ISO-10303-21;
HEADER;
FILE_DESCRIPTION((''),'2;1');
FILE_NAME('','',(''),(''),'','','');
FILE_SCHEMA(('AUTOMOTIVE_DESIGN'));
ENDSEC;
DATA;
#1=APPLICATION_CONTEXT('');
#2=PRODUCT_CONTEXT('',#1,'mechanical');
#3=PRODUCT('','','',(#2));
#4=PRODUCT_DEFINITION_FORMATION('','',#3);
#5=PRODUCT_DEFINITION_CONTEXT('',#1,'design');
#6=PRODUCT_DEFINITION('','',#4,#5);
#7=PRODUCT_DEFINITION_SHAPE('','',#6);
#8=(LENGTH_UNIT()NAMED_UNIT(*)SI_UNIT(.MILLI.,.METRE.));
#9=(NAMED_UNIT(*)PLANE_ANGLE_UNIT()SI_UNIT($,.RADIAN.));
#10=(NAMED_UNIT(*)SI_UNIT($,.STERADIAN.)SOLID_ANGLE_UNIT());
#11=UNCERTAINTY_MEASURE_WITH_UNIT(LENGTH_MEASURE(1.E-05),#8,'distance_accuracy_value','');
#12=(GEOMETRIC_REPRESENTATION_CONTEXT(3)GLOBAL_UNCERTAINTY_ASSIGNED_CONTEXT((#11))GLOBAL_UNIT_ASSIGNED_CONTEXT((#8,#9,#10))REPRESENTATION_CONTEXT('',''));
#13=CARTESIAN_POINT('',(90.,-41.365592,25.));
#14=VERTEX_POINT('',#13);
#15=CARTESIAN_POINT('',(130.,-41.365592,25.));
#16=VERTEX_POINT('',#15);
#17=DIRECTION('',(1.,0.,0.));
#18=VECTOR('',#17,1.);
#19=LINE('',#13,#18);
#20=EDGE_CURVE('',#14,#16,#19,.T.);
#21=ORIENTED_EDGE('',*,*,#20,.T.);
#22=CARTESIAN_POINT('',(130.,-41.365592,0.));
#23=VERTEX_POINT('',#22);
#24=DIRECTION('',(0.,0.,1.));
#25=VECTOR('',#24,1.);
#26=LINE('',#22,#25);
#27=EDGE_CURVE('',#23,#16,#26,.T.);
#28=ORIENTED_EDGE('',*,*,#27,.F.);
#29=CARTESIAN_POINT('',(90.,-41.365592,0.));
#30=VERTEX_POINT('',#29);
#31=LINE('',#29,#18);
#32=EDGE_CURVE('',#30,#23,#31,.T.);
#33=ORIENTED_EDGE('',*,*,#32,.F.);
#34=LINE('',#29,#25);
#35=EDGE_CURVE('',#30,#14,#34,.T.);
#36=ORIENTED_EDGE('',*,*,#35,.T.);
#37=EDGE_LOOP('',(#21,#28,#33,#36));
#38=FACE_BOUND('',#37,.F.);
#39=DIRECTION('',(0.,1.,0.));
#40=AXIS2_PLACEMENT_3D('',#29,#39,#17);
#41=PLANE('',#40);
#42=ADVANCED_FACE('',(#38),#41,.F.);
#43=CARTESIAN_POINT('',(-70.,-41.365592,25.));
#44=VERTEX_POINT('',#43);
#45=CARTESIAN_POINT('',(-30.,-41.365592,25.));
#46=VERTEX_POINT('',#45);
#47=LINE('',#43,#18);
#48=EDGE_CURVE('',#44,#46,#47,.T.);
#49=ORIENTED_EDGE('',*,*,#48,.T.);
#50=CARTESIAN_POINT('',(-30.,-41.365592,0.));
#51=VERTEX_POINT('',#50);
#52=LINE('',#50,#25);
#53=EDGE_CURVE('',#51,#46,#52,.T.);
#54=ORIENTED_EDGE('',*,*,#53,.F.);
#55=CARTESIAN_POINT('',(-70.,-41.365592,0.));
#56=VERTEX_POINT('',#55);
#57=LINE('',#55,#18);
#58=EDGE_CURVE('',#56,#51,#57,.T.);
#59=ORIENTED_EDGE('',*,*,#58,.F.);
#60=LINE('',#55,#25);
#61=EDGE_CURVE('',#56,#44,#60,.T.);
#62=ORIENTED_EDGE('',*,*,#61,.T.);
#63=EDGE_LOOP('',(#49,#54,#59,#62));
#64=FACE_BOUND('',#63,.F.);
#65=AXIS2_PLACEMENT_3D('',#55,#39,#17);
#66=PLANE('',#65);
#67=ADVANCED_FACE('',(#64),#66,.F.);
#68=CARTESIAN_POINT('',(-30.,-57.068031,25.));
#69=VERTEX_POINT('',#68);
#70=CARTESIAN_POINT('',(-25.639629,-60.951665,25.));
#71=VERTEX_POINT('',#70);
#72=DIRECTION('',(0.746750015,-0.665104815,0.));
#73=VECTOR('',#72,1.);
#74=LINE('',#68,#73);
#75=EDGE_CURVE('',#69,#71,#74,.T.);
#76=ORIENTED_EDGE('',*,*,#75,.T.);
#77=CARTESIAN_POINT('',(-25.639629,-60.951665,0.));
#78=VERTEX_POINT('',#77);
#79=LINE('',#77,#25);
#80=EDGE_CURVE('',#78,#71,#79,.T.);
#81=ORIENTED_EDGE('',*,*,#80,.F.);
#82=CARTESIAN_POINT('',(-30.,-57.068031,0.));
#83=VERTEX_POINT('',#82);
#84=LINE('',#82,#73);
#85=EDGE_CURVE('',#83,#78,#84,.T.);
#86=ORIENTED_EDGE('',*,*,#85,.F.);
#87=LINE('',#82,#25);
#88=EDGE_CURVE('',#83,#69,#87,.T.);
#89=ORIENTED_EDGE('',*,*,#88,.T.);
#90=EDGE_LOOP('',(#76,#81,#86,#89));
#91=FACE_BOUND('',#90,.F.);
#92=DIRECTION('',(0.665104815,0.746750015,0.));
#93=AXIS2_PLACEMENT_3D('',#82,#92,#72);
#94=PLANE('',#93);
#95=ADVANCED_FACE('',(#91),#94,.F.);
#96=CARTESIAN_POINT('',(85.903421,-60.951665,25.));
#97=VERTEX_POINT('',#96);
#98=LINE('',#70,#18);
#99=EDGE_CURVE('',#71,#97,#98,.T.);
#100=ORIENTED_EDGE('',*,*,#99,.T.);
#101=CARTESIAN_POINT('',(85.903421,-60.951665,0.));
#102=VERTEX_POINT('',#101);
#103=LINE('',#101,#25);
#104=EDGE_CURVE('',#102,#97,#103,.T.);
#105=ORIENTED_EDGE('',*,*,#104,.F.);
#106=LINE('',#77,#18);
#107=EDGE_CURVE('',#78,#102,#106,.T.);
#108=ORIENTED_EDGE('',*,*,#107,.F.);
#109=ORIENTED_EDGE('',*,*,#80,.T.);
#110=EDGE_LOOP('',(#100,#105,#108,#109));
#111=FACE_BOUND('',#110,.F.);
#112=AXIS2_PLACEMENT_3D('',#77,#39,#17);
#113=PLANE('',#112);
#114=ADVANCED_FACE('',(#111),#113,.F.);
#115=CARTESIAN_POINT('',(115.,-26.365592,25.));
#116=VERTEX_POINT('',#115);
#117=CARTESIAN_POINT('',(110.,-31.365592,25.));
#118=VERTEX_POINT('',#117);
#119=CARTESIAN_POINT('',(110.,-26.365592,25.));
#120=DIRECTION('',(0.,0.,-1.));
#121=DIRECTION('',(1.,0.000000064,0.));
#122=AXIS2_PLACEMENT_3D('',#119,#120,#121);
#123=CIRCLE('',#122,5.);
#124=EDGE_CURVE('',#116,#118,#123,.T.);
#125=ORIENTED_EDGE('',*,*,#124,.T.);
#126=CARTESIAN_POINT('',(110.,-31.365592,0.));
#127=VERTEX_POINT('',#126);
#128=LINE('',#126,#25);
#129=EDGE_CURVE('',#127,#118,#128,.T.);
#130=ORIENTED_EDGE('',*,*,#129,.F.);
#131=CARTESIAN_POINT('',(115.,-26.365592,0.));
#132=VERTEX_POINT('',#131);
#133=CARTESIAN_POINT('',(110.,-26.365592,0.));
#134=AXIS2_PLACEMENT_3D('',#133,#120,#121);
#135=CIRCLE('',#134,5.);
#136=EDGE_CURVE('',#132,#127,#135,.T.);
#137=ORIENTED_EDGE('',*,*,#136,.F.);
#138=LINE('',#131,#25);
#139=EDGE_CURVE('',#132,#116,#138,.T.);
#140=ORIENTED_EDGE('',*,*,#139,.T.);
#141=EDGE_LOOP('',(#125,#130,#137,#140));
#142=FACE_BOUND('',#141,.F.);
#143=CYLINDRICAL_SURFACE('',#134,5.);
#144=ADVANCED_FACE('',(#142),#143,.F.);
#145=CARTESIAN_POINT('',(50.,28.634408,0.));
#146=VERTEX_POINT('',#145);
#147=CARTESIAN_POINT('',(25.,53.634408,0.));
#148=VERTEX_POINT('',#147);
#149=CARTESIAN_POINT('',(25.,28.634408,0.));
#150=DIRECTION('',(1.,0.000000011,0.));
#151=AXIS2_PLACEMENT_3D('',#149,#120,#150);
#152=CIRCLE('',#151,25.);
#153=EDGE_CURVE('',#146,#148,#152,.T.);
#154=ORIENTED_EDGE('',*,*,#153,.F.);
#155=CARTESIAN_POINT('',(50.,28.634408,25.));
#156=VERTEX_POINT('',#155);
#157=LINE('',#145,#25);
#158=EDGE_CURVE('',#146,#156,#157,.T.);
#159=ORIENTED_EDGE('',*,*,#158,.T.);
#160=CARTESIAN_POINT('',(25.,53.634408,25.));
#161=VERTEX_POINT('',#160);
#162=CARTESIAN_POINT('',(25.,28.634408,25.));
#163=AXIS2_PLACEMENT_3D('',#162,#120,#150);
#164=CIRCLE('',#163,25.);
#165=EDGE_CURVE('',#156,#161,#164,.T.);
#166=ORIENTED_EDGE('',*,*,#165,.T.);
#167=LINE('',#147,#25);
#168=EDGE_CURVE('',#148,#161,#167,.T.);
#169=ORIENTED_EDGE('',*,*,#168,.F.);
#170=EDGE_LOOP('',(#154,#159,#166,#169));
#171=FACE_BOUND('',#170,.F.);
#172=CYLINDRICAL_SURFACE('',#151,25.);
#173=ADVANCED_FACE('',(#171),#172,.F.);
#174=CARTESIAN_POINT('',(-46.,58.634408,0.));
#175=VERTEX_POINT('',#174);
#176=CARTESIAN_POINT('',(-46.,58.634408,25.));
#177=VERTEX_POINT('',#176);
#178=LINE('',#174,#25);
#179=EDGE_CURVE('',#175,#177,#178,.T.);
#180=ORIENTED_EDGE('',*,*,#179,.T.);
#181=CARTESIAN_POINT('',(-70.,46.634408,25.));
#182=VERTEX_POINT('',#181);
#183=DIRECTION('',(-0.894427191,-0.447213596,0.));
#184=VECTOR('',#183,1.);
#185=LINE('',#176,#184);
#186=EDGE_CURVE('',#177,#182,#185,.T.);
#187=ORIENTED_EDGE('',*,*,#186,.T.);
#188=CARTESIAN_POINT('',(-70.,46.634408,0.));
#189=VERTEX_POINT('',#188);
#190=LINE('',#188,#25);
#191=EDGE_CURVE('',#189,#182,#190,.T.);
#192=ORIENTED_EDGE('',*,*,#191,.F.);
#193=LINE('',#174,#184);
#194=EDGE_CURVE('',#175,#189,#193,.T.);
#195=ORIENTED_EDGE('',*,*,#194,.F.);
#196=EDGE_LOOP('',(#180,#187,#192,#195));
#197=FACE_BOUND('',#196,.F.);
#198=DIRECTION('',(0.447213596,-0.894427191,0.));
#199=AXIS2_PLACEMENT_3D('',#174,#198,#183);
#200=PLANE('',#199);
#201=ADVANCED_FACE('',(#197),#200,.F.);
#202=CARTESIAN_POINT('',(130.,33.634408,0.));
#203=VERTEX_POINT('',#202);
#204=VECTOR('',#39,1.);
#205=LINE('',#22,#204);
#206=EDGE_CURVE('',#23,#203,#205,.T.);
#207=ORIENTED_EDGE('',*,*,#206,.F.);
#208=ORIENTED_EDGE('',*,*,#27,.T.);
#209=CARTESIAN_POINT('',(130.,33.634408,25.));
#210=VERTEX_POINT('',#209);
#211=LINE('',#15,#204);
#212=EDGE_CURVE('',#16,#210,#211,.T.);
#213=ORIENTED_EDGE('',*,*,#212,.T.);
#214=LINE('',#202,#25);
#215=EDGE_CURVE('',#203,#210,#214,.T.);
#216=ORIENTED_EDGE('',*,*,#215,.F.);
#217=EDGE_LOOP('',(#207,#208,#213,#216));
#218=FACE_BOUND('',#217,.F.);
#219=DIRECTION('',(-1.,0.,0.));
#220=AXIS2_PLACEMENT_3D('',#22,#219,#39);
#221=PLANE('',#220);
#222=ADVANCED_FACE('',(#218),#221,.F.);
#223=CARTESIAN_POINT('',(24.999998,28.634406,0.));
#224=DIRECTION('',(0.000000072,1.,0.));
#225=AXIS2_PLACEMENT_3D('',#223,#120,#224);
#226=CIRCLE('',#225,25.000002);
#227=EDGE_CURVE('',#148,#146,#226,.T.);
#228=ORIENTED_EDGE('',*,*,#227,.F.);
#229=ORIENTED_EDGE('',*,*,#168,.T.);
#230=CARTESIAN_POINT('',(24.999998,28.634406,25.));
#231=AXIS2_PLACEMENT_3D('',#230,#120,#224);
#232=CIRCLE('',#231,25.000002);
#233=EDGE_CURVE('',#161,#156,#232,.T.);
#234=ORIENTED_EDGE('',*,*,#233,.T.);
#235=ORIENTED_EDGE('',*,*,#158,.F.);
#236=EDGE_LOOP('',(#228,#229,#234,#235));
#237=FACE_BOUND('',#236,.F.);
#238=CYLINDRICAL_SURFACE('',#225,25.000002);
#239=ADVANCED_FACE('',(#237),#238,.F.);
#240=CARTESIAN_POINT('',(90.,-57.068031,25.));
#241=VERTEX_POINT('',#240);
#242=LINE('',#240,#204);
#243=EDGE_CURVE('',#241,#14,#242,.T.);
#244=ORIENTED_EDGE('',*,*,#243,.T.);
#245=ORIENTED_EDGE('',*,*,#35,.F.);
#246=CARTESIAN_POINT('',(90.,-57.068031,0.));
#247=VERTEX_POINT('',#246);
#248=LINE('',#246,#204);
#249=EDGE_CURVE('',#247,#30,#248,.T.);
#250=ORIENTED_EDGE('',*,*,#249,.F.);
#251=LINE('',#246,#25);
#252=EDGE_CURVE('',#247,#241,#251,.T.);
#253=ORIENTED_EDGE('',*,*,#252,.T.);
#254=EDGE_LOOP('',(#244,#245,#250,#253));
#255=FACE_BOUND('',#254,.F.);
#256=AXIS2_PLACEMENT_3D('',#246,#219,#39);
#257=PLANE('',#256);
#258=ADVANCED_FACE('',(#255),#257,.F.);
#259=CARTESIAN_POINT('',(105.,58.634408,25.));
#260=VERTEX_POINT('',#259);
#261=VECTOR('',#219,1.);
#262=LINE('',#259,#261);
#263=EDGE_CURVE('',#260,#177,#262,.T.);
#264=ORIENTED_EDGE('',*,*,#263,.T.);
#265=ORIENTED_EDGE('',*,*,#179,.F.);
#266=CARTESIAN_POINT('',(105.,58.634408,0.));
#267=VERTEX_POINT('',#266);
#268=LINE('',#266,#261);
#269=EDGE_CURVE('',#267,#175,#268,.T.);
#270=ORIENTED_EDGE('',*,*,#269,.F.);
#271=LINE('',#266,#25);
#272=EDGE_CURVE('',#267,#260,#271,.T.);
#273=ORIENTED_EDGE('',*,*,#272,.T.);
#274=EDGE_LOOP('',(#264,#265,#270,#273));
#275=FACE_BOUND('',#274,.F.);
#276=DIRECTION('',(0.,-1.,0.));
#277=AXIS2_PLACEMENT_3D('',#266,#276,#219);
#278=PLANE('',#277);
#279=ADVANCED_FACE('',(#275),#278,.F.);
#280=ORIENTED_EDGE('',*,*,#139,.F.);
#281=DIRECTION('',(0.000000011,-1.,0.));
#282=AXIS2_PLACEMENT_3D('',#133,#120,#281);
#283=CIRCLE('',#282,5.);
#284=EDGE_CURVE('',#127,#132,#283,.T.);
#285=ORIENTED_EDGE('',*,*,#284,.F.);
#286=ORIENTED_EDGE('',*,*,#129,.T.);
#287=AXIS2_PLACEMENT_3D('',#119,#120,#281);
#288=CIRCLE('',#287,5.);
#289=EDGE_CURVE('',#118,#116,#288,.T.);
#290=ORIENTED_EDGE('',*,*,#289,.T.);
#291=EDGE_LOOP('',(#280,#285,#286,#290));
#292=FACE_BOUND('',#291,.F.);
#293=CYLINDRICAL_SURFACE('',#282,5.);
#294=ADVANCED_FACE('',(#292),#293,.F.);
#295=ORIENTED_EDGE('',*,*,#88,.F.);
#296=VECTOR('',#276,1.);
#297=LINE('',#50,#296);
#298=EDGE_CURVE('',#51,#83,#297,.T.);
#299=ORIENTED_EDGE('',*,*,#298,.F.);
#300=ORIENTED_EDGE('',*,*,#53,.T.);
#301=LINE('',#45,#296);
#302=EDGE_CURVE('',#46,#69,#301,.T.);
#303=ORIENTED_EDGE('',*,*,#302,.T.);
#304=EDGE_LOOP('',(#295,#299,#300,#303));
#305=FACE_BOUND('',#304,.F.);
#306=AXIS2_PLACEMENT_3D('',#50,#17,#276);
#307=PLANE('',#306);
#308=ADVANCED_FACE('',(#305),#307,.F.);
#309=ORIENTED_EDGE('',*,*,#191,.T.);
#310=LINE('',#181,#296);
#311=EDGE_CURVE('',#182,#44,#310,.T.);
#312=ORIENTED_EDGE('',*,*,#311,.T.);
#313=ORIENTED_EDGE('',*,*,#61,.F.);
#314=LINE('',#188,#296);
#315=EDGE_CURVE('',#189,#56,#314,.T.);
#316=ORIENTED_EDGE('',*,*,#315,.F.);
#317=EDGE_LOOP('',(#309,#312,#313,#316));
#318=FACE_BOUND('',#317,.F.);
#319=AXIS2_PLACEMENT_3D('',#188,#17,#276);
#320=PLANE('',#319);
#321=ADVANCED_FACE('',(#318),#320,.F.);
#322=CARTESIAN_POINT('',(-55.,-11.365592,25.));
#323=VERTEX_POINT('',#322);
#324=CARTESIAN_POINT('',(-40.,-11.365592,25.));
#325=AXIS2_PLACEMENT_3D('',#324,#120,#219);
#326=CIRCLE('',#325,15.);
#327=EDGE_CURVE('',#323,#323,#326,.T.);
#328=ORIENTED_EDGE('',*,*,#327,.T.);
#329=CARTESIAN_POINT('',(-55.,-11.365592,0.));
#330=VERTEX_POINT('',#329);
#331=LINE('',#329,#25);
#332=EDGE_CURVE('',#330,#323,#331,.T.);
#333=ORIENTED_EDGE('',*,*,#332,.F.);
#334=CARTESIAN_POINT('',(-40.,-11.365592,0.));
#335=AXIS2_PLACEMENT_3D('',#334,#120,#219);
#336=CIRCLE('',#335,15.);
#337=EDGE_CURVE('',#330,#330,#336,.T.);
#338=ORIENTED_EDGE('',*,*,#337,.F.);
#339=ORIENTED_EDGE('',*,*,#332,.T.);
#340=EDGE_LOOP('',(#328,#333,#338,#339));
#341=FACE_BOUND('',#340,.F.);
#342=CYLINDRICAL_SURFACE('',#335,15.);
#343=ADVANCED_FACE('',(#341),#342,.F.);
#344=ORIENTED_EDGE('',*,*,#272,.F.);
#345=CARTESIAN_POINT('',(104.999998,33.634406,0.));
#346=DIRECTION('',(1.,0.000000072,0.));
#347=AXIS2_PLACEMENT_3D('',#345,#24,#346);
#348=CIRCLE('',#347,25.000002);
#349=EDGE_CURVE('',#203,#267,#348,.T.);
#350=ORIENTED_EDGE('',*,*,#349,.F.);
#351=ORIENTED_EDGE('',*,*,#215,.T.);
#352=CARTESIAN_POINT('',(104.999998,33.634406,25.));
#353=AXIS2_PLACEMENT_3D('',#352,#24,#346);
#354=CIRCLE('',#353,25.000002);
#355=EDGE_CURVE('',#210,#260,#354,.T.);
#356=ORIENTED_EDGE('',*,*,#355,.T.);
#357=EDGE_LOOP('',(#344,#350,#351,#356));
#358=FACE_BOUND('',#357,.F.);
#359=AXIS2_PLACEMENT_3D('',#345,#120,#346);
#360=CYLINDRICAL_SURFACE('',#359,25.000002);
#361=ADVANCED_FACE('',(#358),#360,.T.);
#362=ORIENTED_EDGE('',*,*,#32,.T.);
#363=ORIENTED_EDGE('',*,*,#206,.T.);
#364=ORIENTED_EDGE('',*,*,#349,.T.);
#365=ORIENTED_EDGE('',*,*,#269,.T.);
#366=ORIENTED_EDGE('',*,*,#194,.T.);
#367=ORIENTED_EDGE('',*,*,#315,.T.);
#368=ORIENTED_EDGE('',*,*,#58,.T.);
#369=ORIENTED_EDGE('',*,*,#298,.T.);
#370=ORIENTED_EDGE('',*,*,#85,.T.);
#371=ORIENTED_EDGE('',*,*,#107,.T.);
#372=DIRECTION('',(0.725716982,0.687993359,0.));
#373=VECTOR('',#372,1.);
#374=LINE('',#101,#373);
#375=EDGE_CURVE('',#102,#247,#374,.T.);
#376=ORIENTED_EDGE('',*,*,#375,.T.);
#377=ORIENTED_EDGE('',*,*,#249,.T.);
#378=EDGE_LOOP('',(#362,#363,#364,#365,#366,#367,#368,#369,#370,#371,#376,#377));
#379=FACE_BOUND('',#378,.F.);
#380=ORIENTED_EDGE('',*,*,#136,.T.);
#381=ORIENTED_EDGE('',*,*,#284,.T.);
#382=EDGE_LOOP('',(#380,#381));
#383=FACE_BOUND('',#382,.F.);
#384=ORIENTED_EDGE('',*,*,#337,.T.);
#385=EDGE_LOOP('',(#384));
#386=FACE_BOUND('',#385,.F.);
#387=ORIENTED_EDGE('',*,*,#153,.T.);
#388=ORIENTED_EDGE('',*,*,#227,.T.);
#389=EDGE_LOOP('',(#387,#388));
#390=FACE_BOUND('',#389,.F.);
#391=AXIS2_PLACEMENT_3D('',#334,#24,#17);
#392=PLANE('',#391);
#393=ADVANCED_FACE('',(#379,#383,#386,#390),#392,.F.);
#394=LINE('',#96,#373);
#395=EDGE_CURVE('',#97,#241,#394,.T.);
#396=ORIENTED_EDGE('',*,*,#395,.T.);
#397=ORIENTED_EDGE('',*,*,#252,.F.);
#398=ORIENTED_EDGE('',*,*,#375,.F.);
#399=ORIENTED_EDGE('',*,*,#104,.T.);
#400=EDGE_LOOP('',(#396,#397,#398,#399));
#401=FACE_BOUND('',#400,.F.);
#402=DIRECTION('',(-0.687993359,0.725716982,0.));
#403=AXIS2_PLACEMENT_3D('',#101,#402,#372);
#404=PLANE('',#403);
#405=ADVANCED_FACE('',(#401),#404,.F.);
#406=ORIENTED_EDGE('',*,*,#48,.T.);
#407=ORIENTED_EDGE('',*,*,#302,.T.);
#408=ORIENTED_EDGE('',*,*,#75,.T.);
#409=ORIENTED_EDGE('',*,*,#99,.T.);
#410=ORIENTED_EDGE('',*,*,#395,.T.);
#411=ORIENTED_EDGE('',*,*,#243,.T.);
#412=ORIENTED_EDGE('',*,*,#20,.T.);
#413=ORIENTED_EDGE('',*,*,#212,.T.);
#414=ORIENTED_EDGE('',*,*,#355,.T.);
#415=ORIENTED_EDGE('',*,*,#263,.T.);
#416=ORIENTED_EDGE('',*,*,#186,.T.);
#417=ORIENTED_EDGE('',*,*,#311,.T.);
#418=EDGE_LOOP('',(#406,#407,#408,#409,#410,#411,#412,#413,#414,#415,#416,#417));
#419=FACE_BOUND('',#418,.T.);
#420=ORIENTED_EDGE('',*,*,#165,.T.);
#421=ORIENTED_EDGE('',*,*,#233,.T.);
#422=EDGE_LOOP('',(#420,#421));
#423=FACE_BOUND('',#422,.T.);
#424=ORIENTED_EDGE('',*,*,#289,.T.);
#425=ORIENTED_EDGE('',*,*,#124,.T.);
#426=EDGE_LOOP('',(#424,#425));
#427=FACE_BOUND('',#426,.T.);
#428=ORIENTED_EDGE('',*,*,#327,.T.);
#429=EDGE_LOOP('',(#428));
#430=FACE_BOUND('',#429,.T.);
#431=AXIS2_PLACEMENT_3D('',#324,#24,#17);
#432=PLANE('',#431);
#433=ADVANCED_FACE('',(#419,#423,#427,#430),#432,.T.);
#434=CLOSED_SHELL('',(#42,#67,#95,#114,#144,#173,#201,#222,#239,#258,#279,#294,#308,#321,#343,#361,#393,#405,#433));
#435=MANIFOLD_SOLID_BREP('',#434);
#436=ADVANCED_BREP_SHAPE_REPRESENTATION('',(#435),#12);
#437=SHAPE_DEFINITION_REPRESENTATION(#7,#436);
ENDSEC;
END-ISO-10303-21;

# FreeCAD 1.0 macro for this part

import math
import FreeCAD as App
import Part
import Sketcher

V = App.Vector
Q = App.Units.Quantity

doc = App.newDocument("Part")
body = doc.addObject("PartDesign::Body", "Body")

# Sketch on XY plane
sketch1 = body.newObject("Sketcher::SketchObject", "Sketch")
sketch1.AttachmentSupport = (doc.getObject("XY_Plane"), [""])
sketch1.MapMode = "FlatFace"
sketch1.addGeometry([
    Part.LineSegment(V(-46, 58.6, 0), V(-70, 46.6, 0)),  # 0
    Part.LineSegment(V(-70, 46.6, 0), V(-70, -41.4, 0)),  # 1
    Part.LineSegment(V(-70, -41.4, 0), V(-30, -41.4, 0)),  # 2
    Part.LineSegment(V(-30, -41.4, 0), V(-30, -57.1, 0)),  # 3
    Part.LineSegment(V(-30, -57.1, 0), V(-25.6, -61, 0)),  # 4
    Part.LineSegment(V(-25.6, -61, 0), V(85.9, -61, 0)),  # 5
    Part.LineSegment(V(85.9, -61, 0), V(90, -57.1, 0)),  # 6
    Part.LineSegment(V(90, -57.1, 0), V(90, -41.4, 0)),  # 7
    Part.LineSegment(V(90, -41.4, 0), V(130, -41.4, 0)),  # 8
    Part.LineSegment(V(130, -41.4, 0), V(130, 33.6, 0)),  # 9
    Part.ArcOfCircle(Part.Circle(V(105, 33.6, 0), V(0, 0, 1), 25), math.radians(0), math.radians(90)),  # 10
    Part.LineSegment(V(105, 58.6, 0), V(-46, 58.6, 0)),  # 11
    Part.Circle(V(-40, -11.4, 0), V(0, 0, 1), 15),  # 12
    Part.ArcOfCircle(Part.Circle(V(110, -26.4, 0), V(0, 0, 1), 5), math.radians(0), math.radians(270)),  # 13
    Part.ArcOfCircle(Part.Circle(V(110, -26.4, 0), V(0, 0, 1), 5), math.radians(-90), math.radians(0)),  # 14
    Part.ArcOfCircle(Part.Circle(V(25, 28.6, 0), V(0, 0, 1), 25), math.radians(0), math.radians(90)),  # 15
    Part.ArcOfCircle(Part.Circle(V(25, 28.6, 0), V(0, 0, 1), 25), math.radians(90), math.radians(360)),  # 16
], False)
sketch1.addConstraint([
    Sketcher.Constraint("Coincident", 0, 2, 1, 1),
    Sketcher.Constraint("Coincident", 1, 2, 2, 1),
    Sketcher.Constraint("Coincident", 2, 2, 3, 1),
    Sketcher.Constraint("Coincident", 3, 2, 4, 1),
    Sketcher.Constraint("Coincident", 4, 2, 5, 1),
    Sketcher.Constraint("Coincident", 5, 2, 6, 1),
    Sketcher.Constraint("Coincident", 6, 2, 7, 1),
    Sketcher.Constraint("Coincident", 7, 2, 8, 1),
    Sketcher.Constraint("Coincident", 8, 2, 9, 1),
    Sketcher.Constraint("Tangent", 9, 2, 10, 1),
    Sketcher.Constraint("Tangent", 10, 2, 11, 1),
    Sketcher.Constraint("Coincident", 11, 2, 0, 1),
    Sketcher.Constraint("Tangent", 13, 1, 14, 2),
    Sketcher.Constraint("Coincident", 14, 1, 13, 2),
    Sketcher.Constraint("Tangent", 15, 1, 16, 2),
    Sketcher.Constraint("Coincident", 16, 1, 15, 2),
    Sketcher.Constraint("Vertical", 1),
    Sketcher.Constraint("Horizontal", 2),
    Sketcher.Constraint("Vertical", 3),
    Sketcher.Constraint("Horizontal", 5),
    Sketcher.Constraint("Vertical", 7),
    Sketcher.Constraint("Horizontal", 8),
    Sketcher.Constraint("Vertical", 9),
    Sketcher.Constraint("Horizontal", 11),
    Sketcher.Constraint("Equal", 10, 15),
    Sketcher.Constraint("Horizontal", 3, 2, 6, 2),
    Sketcher.Constraint("Horizontal", 2, 2, 7, 2),
    Sketcher.Constraint("Horizontal", 14, 3, 13, 1),
    Sketcher.Constraint("Horizontal", 16, 3, 15, 1),
    Sketcher.Constraint("Vertical", 13, 3, 14, 1),
    Sketcher.Constraint("Vertical", 15, 3, 16, 1),
    Sketcher.Constraint("Equal", 2, 8),
    Sketcher.Constraint("Diameter", 12, Q("30 mm")),
    Sketcher.Constraint("Radius", 10, Q("25.000002 mm")),
    Sketcher.Constraint("Radius", 13, Q("5 mm")),
    Sketcher.Constraint("DistanceX", 2, 1, 2, 2, Q("40 mm")),
    Sketcher.Constraint("DistanceX", 11, 2, 11, 1, Q("151 mm")),
    Sketcher.Constraint("DistanceY", 1, 2, 1, 1, Q("88 mm")),
    Sketcher.Constraint("DistanceY", 9, 1, 9, 2, Q("75 mm")),
    Sketcher.Constraint("DistanceX", -1, 1, 10, 3, Q("104.999998 mm")),
    Sketcher.Constraint("DistanceX", 12, 3, -1, 1, Q("40 mm")),
    Sketcher.Constraint("DistanceX", -1, 1, 13, 3, Q("110 mm")),
    Sketcher.Constraint("DistanceX", -1, 1, 15, 3, Q("24.999998 mm")),
    Sketcher.Constraint("DistanceX", 0, 2, -1, 1, Q("70 mm")),
    Sketcher.Constraint("DistanceY", 12, 3, 10, 3, Q("44.999998 mm")),
    Sketcher.Constraint("DistanceY", 13, 3, 10, 3, Q("59.999998 mm")),
    Sketcher.Constraint("DistanceY", 12, 3, 15, 3, Q("39.999998 mm")),
    Sketcher.Constraint("DistanceX", 5, 1, 5, 2, Q("111.54305 mm")),
    Sketcher.Constraint("DistanceY", 3, 2, 3, 1, Q("15.702439 mm")),
    Sketcher.Constraint("Distance", 4, Q("5.839131 mm")),
    Sketcher.Constraint("Distance", 6, Q("5.644871 mm")),
    Sketcher.Constraint("DistanceY", 13, 3, -1, 1, Q("26.365592 mm")),
])
pad1 = body.newObject("PartDesign::Pad", "Pad")
pad1.Profile = sketch1
pad1.Length = 25

doc.recompute()
